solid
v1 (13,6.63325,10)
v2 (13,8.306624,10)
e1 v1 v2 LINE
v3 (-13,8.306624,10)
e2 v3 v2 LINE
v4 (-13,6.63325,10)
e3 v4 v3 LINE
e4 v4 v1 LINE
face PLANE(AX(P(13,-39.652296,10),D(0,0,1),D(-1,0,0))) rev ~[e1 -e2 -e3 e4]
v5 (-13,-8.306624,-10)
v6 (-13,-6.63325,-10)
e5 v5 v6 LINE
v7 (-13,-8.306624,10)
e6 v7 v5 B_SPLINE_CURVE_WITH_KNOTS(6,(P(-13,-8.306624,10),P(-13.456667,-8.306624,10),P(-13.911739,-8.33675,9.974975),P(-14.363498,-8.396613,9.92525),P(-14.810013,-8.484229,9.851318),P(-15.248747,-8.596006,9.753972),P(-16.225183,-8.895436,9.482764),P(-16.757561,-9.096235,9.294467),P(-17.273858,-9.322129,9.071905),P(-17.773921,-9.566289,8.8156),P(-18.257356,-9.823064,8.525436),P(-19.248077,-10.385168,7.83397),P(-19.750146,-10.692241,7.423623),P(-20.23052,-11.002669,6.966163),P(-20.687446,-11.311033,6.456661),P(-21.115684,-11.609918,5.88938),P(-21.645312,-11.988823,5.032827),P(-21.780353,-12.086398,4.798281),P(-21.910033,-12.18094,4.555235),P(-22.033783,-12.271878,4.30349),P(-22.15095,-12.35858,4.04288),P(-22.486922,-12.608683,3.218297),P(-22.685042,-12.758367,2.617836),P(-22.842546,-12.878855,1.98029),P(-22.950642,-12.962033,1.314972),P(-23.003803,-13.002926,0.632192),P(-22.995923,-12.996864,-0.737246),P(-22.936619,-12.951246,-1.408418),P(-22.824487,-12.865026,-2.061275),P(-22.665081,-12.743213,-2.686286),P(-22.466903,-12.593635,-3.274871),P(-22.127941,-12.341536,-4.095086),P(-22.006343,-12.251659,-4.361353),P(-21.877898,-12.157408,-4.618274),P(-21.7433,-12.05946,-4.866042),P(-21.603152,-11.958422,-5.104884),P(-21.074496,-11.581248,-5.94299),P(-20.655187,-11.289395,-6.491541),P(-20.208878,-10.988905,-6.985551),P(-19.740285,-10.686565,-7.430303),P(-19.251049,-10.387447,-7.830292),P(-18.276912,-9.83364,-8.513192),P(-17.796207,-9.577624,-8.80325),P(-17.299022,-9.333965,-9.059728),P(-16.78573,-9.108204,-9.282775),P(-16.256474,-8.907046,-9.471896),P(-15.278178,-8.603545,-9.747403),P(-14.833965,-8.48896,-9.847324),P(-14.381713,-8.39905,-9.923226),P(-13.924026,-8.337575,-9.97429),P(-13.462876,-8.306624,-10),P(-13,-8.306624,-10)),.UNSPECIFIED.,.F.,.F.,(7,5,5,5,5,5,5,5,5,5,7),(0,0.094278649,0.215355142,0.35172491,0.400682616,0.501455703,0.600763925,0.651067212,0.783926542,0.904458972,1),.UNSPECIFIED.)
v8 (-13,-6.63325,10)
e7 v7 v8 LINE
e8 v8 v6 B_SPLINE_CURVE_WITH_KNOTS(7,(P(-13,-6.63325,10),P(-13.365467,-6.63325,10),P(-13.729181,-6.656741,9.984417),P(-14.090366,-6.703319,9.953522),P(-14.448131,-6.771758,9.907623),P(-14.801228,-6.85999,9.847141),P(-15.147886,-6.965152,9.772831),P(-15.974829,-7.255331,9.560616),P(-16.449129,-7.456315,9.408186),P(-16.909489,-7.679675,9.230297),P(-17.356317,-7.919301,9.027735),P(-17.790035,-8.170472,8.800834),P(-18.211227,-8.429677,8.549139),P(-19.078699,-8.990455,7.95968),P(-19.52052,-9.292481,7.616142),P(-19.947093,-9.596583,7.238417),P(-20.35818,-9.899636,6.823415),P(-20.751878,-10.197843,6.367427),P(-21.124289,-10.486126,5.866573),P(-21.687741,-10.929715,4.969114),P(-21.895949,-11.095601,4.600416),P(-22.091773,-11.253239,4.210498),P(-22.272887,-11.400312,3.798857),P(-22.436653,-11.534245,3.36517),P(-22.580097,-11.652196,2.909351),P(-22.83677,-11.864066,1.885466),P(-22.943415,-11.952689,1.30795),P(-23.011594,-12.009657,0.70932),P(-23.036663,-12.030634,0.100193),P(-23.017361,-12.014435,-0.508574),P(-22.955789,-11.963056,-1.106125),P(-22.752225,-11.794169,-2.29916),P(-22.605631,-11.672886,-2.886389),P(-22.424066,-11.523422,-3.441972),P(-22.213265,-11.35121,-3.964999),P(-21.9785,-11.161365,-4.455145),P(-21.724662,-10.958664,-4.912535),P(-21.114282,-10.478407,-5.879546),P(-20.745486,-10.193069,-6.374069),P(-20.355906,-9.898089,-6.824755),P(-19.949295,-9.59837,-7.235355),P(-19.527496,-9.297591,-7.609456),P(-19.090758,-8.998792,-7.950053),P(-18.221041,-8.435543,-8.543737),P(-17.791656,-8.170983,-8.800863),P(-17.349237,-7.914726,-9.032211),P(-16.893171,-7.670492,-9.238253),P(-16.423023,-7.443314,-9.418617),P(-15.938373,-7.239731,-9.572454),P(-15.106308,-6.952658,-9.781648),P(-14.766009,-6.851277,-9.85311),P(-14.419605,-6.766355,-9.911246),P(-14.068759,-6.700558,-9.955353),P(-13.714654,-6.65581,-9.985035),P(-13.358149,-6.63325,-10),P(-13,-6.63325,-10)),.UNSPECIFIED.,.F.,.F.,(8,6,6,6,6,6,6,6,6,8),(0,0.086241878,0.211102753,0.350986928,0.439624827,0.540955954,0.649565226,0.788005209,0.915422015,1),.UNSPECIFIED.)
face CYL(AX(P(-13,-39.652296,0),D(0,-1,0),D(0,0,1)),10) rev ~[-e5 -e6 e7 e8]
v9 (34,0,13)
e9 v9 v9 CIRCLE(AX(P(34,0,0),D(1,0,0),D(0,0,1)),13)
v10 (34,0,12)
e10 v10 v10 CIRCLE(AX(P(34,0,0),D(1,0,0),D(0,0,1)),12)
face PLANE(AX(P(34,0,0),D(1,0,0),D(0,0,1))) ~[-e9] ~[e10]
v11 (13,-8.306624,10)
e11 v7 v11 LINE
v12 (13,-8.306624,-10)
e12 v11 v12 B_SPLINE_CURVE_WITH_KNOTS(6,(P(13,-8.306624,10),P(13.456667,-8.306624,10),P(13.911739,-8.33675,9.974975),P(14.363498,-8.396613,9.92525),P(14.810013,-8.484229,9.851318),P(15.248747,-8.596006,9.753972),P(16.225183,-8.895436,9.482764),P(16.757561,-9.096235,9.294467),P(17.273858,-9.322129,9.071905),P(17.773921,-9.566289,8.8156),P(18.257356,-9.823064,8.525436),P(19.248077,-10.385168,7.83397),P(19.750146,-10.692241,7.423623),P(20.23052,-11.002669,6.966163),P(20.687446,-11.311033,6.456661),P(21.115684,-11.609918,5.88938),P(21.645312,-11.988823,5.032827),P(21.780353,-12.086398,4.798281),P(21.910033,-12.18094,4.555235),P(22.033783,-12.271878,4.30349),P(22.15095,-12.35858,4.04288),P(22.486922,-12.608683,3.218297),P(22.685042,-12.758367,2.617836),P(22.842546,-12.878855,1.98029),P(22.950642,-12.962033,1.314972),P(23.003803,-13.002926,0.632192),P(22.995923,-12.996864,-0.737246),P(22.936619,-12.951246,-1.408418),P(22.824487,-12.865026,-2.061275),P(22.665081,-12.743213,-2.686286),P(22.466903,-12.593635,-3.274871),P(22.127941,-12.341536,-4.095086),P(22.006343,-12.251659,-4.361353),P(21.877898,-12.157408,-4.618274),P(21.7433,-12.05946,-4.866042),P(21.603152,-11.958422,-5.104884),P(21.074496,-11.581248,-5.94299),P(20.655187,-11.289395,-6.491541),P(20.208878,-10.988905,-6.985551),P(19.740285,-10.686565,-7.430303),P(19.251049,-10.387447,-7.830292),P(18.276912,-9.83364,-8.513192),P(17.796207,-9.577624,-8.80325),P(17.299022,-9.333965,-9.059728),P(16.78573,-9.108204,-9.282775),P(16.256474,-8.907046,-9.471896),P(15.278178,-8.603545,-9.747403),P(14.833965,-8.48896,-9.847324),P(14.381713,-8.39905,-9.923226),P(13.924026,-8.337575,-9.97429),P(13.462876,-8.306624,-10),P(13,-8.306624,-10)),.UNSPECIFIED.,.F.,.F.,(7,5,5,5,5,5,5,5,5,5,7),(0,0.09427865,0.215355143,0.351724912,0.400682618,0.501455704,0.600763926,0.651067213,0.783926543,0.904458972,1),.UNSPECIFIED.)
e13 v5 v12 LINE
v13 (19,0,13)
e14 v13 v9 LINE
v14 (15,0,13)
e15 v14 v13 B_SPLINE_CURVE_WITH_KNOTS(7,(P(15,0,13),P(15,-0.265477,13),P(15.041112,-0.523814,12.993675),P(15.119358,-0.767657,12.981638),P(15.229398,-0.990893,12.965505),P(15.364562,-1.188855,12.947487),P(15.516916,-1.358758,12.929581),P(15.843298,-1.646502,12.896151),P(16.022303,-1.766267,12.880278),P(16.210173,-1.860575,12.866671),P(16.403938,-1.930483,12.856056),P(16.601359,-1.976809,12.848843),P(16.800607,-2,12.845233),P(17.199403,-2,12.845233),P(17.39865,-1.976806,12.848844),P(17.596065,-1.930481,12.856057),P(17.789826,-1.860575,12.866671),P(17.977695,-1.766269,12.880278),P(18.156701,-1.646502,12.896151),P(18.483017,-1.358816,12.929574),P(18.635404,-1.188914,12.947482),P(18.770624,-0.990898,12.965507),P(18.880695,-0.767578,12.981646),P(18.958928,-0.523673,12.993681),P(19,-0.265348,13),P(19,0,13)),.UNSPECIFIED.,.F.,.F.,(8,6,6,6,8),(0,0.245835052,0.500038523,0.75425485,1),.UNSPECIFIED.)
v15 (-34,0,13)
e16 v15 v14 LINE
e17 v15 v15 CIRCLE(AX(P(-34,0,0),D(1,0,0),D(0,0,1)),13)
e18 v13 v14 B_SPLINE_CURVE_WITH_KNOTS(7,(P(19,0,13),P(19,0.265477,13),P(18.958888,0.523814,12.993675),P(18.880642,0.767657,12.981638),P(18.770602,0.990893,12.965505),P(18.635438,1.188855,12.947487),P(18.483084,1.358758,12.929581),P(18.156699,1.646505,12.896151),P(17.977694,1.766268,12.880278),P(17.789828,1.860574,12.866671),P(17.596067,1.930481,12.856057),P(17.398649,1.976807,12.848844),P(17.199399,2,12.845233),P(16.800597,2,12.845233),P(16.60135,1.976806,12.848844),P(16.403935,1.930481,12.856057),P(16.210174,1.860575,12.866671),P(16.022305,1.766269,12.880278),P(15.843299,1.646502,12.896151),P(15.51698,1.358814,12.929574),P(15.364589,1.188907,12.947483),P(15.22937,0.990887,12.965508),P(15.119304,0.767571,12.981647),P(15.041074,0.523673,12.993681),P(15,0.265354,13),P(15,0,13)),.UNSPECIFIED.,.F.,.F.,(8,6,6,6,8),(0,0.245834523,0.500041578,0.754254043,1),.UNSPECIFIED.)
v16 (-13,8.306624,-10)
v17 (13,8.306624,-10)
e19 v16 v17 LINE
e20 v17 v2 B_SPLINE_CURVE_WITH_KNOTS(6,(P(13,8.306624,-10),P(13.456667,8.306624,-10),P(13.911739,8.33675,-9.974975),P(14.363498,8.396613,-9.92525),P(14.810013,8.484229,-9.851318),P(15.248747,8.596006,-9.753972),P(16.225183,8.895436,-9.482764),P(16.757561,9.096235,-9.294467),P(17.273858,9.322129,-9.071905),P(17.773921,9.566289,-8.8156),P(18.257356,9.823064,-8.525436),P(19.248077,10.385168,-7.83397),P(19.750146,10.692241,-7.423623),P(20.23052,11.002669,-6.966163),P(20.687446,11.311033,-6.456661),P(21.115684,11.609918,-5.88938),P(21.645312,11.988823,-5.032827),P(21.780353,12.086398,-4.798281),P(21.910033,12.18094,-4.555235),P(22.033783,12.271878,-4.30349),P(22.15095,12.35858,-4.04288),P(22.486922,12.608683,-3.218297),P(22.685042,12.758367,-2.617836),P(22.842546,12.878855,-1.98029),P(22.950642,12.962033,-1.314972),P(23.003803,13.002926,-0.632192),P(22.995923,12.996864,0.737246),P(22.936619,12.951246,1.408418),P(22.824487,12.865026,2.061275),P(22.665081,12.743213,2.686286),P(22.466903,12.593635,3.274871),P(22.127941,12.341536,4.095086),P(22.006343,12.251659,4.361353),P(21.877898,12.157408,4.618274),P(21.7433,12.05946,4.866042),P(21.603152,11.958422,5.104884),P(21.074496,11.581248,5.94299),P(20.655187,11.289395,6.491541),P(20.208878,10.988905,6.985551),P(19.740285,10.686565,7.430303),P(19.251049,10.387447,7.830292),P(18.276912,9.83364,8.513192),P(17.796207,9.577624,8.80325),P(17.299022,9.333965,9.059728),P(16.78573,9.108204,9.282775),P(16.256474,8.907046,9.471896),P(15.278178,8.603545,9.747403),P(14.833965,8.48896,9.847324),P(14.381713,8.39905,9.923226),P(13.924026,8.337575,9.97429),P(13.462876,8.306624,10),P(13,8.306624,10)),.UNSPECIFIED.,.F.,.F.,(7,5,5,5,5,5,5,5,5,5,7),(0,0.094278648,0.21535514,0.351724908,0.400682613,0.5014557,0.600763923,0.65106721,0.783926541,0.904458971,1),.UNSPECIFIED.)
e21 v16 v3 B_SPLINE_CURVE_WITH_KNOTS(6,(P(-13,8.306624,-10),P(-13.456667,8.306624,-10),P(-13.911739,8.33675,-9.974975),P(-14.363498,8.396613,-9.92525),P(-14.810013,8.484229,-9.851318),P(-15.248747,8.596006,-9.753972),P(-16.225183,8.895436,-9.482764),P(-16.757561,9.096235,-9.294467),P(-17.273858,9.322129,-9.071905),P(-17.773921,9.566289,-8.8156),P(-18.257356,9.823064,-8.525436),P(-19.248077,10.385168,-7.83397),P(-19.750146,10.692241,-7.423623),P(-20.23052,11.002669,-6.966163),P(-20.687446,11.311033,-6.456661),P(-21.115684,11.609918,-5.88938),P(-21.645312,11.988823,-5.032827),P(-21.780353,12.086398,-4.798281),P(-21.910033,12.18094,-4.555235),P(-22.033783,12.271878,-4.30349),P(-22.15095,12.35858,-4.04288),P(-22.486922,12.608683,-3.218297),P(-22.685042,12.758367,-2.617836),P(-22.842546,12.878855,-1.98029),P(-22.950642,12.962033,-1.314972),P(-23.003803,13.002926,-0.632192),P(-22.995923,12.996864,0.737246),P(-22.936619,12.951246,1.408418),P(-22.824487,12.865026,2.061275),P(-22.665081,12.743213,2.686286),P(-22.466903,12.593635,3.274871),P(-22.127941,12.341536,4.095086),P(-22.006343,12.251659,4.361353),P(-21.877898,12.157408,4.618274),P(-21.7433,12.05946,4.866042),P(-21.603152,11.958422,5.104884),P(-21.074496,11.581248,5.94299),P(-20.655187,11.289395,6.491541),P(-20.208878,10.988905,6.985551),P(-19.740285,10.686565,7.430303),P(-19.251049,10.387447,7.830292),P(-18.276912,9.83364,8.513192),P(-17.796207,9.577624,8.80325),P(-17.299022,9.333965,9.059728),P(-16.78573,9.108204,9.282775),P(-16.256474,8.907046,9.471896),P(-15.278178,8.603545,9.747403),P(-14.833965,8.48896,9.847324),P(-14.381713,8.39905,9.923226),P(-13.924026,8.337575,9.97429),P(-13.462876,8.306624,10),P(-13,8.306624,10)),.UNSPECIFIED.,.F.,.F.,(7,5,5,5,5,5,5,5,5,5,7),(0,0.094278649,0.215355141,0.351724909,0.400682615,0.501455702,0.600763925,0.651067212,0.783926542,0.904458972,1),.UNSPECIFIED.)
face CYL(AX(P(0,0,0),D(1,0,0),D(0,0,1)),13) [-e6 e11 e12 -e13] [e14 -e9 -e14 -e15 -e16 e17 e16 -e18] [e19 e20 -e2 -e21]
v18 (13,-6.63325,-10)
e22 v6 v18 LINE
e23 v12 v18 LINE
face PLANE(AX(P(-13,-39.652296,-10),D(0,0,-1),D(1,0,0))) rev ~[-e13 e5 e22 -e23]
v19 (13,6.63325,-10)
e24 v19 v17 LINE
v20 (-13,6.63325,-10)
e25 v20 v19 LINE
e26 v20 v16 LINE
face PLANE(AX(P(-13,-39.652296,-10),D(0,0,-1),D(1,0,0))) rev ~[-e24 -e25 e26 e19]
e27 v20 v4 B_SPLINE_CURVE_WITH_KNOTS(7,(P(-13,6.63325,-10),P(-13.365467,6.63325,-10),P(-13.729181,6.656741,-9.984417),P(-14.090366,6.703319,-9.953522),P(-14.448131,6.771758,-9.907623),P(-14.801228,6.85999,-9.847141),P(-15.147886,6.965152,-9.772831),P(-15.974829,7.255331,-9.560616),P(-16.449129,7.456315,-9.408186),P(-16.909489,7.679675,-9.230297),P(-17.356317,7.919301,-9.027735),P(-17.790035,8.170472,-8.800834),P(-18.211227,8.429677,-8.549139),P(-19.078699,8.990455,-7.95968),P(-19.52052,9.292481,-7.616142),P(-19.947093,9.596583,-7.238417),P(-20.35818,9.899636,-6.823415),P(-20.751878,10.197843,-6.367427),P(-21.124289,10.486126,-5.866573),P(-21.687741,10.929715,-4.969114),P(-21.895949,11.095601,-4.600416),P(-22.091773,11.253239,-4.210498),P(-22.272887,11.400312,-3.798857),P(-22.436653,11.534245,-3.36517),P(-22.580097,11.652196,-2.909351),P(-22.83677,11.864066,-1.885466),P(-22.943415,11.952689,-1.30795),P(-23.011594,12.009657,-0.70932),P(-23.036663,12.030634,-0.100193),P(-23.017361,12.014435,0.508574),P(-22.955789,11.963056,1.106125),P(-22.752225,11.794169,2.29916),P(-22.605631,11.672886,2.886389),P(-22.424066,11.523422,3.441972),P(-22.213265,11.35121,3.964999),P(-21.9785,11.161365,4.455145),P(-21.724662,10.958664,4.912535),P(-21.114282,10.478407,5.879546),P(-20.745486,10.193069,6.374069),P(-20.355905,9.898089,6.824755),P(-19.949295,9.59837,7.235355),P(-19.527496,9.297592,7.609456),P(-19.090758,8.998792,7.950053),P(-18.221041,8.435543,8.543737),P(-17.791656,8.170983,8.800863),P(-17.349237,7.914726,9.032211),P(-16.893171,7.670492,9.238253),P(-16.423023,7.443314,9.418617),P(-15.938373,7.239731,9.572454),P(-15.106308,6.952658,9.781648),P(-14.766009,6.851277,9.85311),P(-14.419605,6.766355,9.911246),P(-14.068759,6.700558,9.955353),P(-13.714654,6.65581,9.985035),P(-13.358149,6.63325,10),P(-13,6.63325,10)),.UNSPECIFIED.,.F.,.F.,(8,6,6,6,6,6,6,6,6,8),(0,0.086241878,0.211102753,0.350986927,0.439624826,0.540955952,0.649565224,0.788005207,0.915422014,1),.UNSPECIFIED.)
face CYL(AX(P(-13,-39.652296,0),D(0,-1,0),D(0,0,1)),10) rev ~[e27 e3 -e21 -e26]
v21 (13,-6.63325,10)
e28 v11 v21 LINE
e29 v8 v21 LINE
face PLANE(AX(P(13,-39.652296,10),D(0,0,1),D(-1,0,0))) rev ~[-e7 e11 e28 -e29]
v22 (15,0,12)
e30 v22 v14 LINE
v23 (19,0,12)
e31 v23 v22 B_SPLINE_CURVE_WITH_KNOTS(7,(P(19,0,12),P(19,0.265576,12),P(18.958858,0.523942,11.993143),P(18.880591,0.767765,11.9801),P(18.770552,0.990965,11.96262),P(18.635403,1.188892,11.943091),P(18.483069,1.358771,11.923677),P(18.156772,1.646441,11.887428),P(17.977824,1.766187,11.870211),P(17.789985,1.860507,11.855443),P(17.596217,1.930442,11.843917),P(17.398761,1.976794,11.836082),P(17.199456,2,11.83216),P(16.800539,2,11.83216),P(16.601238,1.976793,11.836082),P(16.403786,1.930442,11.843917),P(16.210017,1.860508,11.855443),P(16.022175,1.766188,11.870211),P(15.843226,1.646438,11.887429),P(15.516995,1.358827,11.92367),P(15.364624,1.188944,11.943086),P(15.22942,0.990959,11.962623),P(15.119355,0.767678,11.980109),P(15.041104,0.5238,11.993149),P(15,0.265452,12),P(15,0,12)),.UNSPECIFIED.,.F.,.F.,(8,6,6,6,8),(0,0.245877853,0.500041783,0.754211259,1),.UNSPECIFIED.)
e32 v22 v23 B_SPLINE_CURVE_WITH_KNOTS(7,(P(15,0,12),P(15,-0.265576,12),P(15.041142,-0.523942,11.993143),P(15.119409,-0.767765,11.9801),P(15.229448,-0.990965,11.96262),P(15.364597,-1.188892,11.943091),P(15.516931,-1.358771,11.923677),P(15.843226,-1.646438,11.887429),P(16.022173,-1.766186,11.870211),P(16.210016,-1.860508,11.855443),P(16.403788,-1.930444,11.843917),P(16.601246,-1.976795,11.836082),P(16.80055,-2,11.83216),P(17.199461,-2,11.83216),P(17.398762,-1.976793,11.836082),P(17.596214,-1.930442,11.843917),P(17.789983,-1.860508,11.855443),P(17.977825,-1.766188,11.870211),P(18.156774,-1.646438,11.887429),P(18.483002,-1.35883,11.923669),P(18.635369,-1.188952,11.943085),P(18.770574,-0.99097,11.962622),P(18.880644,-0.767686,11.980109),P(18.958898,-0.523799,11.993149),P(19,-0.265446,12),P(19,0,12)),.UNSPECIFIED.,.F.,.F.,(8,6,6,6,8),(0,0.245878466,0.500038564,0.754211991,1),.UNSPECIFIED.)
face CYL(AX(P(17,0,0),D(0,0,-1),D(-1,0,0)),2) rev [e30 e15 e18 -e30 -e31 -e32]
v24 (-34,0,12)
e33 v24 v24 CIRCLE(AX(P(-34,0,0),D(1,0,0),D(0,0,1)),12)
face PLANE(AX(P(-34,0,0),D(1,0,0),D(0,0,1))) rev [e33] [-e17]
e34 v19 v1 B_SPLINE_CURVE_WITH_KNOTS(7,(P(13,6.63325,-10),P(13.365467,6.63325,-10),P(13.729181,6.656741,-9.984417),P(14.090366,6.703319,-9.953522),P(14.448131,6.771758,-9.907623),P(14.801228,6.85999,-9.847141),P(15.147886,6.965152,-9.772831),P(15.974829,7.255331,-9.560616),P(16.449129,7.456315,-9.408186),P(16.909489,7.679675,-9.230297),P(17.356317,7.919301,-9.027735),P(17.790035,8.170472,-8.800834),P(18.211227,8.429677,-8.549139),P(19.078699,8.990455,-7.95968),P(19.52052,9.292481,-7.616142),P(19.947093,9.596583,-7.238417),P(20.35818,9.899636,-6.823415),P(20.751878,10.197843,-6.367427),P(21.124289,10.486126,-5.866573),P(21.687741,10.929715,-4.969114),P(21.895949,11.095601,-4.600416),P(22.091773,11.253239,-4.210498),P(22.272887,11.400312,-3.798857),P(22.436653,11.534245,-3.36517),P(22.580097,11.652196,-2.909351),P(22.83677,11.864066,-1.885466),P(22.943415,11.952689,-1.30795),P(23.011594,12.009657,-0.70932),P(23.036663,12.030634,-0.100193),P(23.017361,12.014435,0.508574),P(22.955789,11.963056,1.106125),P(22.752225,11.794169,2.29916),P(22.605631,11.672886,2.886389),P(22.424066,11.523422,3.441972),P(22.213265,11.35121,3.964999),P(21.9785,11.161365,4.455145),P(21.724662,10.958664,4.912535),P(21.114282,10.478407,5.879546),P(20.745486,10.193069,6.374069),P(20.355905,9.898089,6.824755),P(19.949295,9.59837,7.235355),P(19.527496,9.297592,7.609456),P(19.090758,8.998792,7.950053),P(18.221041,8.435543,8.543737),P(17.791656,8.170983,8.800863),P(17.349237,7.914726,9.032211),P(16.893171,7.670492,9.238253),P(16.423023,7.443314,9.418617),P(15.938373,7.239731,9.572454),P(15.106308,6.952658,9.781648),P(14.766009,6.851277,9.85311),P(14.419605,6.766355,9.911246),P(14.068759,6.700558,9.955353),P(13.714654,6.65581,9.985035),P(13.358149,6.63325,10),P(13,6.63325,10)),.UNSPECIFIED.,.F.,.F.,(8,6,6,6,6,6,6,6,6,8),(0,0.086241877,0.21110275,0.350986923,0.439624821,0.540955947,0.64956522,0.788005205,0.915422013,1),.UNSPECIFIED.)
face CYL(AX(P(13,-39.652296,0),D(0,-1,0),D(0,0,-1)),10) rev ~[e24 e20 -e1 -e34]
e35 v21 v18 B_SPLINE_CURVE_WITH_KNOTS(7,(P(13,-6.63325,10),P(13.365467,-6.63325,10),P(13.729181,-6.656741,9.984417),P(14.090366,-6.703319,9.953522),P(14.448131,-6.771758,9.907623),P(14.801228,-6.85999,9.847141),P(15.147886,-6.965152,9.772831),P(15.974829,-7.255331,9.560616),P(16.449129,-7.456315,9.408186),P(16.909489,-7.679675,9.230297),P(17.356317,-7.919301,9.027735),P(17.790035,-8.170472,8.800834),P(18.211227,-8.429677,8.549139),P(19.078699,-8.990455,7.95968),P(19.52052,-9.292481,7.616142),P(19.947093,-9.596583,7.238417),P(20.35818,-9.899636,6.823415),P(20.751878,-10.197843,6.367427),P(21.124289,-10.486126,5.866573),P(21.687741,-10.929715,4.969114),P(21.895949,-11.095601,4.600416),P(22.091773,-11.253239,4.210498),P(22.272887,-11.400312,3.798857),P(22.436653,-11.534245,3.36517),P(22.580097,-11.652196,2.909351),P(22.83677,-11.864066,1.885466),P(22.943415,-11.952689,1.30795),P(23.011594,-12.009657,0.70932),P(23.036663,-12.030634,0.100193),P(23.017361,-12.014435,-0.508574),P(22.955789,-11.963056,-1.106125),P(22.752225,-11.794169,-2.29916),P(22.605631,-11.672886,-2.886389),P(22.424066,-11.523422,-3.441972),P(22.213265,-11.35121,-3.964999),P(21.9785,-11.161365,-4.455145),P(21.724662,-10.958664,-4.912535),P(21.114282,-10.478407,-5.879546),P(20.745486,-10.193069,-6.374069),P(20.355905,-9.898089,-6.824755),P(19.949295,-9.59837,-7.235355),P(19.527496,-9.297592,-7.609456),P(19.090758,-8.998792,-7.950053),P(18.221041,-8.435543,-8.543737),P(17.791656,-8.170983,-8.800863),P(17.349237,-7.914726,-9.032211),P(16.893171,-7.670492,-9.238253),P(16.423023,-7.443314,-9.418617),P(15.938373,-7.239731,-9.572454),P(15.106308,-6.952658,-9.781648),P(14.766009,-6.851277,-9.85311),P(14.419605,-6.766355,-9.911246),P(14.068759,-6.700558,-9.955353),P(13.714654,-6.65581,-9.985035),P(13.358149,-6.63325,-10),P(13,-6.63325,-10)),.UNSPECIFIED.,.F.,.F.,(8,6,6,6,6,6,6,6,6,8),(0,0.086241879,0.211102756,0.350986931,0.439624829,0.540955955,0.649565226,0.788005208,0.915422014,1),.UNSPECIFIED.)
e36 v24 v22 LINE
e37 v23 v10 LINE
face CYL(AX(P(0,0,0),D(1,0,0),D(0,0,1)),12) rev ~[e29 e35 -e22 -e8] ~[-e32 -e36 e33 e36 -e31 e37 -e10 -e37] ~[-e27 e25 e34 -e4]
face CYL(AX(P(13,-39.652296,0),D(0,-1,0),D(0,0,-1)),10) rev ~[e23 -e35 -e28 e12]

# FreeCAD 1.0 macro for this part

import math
import FreeCAD as App
import Part
import Sketcher
from FreeCAD import Vector


def add_polygon(sketch, points):
    """Adds a closed chain of lines whose ends are joined by coincident constraints."""
    first, n = sketch.GeometryCount, len(points)
    for a, b in zip(points, points[1:] + points[:1]):
        sketch.addGeometry(Part.LineSegment(App.Vector(*a, 0), App.Vector(*b, 0)), False)
    for i in range(n):
        sketch.addConstraint(Sketcher.Constraint("Coincident", first + i, 2, first + (i + 1) % n, 1))

doc = App.newDocument("Part")
body = doc.addObject("PartDesign::Body", "Body")

# Sketch on XY plane
sketch1 = doc.addObject("Sketcher::SketchObject", "Sketch")
body.addObject(sketch1)
sketch1.AttachmentSupport = (doc.XY_Plane, [""])
sketch1.MapMode = "FlatFace"
add_polygon(sketch1, [(-34, 13), (-34, 12), (34, 12), (34, 13)])  # lines 0-3
sketch1.addConstraint(Sketcher.Constraint("Vertical", 0))
sketch1.addConstraint(Sketcher.Constraint("Horizontal", 1))
sketch1.addConstraint(Sketcher.Constraint("Vertical", 2))
sketch1.addConstraint(Sketcher.Constraint("Horizontal", 3))
sketch1.addConstraint(Sketcher.Constraint("DistanceX", 1, 1, 1, 2, 68.0))
sketch1.addConstraint(Sketcher.Constraint("DistanceY", 0, 2, 0, 1, 1.0))
sketch1.addConstraint(Sketcher.Constraint("DistanceX", 0, 2, -1, 1, 34.0))
sketch1.addConstraint(Sketcher.Constraint("DistanceY", -1, 1, 0, 2, 12.0))
revolution = doc.addObject("PartDesign::Revolution", "Revolution")
body.addObject(revolution)
revolution.Profile = sketch1
revolution.ReferenceAxis = (sketch1, ["H_Axis"])
revolution.Angle = 360

# Sketch on XZ plane
sketch2 = doc.addObject("Sketcher::SketchObject", "Sketch001")
body.addObject(sketch2)
sketch2.AttachmentSupport = (doc.XZ_Plane, [""])
sketch2.MapMode = "FlatFace"
sketch2.addGeometry(Part.LineSegment(Vector(13, -10, 0), Vector(-13, -10, 0)), False)
sketch2.addGeometry(Part.ArcOfCircle(Part.Circle(Vector(-13, 0, 0), Vector(0, 0, 1), 10), math.radians(90), math.radians(270)), False)
sketch2.addGeometry(Part.LineSegment(Vector(-13, 10, 0), Vector(13, 10, 0)), False)
sketch2.addGeometry(Part.ArcOfCircle(Part.Circle(Vector(13, 0, 0), Vector(0, 0, 1), 10), math.radians(-90), math.radians(90)), False)
sketch2.addConstraint(Sketcher.Constraint("Tangent", 0, 2, 1, 2))
sketch2.addConstraint(Sketcher.Constraint("Tangent", 1, 1, 2, 1))
sketch2.addConstraint(Sketcher.Constraint("Tangent", 2, 2, 3, 2))
sketch2.addConstraint(Sketcher.Constraint("Tangent", 3, 1, 0, 1))
sketch2.addConstraint(Sketcher.Constraint("Horizontal", 0))
sketch2.addConstraint(Sketcher.Constraint("Horizontal", 2))
sketch2.addConstraint(Sketcher.Constraint("Symmetric", 1, 3, 3, 3, -1, 1))
sketch2.addConstraint(Sketcher.Constraint("Radius", 1, 10.0))
sketch2.addConstraint(Sketcher.Constraint("DistanceX", 0, 2, 0, 1, 26.0))
pocket1 = doc.addObject("PartDesign::Pocket", "Pocket")
body.addObject(pocket1)
pocket1.Profile = sketch2
pocket1.Type = "ThroughAll"
pocket1.Midplane = True

# Sketch on XY plane
sketch3 = doc.addObject("Sketcher::SketchObject", "Sketch002")
body.addObject(sketch3)
sketch3.AttachmentSupport = (doc.XY_Plane, [""])
sketch3.MapMode = "FlatFace"
sketch3.addGeometry(Part.Circle(Vector(17, 0, 0), Vector(0, 0, 1), 2), False)
sketch3.addConstraint(Sketcher.Constraint("PointOnObject", 0, 3, -1))
sketch3.addConstraint(Sketcher.Constraint("Diameter", 0, 4.0))
sketch3.addConstraint(Sketcher.Constraint("DistanceX", -1, 1, 0, 3, 17.0))
pocket2 = doc.addObject("PartDesign::Pocket", "Pocket001")
body.addObject(pocket2)
pocket2.Profile = sketch3
pocket2.Type = "ThroughAll"
pocket2.Reversed = True

doc.recompute()
